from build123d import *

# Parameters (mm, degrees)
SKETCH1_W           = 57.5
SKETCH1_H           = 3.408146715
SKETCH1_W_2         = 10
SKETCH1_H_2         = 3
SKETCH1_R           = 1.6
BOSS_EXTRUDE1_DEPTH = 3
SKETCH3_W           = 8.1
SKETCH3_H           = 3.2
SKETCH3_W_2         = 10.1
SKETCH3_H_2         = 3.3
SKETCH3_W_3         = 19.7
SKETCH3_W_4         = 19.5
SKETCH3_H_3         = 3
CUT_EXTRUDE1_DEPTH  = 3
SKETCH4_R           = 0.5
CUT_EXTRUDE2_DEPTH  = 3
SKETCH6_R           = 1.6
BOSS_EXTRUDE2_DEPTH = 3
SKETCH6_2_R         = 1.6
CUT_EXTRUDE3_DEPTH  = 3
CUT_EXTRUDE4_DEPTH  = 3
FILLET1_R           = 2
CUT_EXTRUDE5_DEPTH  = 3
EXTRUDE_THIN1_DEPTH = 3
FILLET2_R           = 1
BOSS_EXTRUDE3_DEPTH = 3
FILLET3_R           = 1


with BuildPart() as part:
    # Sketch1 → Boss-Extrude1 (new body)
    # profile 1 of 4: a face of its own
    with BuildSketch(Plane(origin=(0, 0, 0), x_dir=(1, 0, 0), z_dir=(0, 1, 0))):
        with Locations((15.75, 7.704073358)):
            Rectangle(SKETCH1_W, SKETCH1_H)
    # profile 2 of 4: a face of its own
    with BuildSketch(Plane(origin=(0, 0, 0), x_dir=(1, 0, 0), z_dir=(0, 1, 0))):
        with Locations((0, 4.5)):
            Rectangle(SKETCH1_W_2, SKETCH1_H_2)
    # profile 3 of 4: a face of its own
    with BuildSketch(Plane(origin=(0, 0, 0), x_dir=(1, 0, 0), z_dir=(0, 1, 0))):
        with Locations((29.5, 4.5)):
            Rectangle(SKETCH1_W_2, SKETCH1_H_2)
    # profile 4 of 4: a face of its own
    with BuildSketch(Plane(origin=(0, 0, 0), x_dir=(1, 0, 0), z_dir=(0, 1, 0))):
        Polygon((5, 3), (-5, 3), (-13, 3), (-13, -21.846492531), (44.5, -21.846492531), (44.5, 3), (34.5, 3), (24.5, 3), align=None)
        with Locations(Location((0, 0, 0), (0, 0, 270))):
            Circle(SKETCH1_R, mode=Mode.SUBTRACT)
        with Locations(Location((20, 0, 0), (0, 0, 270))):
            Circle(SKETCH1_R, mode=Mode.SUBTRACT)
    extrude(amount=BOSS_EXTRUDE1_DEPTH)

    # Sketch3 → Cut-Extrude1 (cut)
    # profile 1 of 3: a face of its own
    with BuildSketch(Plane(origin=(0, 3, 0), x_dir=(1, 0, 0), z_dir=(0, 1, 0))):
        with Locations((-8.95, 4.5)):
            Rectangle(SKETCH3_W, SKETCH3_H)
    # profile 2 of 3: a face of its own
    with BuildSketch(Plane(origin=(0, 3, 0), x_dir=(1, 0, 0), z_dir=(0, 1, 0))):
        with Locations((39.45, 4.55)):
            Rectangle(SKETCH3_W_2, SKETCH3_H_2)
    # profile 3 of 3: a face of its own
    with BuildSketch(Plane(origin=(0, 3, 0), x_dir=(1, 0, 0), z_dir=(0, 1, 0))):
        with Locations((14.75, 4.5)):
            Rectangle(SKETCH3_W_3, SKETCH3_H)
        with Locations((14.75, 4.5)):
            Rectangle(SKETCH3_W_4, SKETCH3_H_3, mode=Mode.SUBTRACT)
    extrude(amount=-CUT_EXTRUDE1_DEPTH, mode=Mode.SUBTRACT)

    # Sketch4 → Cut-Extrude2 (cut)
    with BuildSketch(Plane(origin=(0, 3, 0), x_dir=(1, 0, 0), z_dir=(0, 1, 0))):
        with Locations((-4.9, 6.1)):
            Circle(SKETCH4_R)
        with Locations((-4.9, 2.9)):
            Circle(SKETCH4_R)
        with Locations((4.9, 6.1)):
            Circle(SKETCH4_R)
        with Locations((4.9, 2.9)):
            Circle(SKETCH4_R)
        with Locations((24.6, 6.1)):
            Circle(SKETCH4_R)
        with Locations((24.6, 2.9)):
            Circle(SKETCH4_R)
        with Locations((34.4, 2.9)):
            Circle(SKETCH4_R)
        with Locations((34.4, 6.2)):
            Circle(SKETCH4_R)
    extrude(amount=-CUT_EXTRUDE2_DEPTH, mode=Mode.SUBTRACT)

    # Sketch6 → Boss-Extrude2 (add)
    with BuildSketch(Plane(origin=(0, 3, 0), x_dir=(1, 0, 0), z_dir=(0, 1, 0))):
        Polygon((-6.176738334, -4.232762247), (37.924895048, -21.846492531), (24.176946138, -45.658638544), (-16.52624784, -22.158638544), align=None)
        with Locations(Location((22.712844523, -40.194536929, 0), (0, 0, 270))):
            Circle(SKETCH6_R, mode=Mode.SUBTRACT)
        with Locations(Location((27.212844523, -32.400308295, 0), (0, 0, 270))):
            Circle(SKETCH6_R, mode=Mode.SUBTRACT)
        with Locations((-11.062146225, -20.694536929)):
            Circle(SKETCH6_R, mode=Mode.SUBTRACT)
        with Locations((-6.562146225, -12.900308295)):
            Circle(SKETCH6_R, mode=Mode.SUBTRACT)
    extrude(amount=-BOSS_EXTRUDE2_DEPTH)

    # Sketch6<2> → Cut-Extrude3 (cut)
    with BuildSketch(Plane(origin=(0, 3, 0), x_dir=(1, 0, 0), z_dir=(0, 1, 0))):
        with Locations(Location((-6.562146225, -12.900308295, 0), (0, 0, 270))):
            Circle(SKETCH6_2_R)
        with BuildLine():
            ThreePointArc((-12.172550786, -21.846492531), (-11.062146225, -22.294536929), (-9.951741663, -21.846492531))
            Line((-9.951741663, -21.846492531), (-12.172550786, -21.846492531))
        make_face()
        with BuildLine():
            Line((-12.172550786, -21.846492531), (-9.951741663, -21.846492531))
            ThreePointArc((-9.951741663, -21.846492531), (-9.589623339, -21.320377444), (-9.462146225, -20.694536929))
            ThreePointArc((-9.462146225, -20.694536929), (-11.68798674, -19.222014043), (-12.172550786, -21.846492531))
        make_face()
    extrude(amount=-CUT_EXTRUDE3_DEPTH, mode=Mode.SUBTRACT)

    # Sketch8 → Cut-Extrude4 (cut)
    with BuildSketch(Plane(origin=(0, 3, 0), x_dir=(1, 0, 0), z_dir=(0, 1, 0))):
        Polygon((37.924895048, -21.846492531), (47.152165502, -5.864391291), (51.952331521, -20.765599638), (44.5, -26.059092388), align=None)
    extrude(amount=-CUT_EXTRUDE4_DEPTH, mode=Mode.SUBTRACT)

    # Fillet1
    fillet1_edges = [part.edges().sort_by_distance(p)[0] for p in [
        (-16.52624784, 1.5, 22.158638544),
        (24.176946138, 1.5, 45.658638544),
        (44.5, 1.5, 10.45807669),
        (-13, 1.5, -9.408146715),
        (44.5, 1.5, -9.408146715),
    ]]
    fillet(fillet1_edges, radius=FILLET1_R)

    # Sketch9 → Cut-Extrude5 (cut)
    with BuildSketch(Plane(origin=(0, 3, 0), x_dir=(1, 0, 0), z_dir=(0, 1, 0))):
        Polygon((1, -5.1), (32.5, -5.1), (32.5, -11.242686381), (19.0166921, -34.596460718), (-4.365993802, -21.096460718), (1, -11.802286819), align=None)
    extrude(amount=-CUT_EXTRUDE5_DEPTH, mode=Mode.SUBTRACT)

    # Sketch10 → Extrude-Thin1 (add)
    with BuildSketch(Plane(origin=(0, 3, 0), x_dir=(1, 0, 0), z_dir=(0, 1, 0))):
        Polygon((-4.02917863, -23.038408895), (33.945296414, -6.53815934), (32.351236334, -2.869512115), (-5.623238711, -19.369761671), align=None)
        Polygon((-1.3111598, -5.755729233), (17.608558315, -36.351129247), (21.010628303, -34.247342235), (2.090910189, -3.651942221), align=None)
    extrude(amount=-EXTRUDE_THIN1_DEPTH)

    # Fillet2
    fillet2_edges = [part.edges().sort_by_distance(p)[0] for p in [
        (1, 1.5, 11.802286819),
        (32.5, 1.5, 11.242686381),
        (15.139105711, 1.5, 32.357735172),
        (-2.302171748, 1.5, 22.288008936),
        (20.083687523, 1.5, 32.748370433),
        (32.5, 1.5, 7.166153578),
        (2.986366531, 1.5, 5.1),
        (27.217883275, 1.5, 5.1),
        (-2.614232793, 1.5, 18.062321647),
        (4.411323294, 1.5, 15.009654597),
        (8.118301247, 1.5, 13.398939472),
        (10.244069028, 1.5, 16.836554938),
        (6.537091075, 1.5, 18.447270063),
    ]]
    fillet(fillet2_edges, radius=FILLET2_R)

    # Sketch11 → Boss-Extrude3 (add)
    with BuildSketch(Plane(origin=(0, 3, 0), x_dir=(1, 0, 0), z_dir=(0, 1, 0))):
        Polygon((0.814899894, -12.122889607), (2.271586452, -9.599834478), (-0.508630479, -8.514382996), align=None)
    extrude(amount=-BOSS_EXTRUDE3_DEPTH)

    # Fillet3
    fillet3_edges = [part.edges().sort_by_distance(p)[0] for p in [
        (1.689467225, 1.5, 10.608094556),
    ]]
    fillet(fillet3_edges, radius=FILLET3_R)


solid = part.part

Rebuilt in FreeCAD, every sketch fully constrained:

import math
import FreeCAD as App
import Part
import Sketcher
Q = App.Units.Quantity


def edges_at(feature, points):
    """Names of the edges that pass closest to the given points."""
    edges = feature.Shape.Edges
    near = lambda p: min(range(len(edges)), key=lambda i: edges[i].distToShape(Part.Vertex(*p))[0])
    return sorted({f"Edge{near(p) + 1}" for p in points})


def add_polygon(sketch, points):
    """Adds a closed chain of lines whose ends are joined by coincident constraints."""
    first, n = sketch.GeometryCount, len(points)
    for a, b in zip(points, points[1:] + points[:1]):
        sketch.addGeometry(Part.LineSegment(App.Vector(*a, 0), App.Vector(*b, 0)), False)
    for i in range(n):
        sketch.addConstraint(Sketcher.Constraint("Coincident", first + i, 2, first + (i + 1) % n, 1))

doc = App.newDocument("Part")
body = doc.addObject("PartDesign::Body", "Body")

# Sketch on XZ plane
sketch1 = body.newObject("Sketcher::SketchObject", "Sketch")
sketch1.AttachmentSupport = (doc.getObject("XZ_Plane"), [""])
sketch1.MapMode = "FlatFace"
add_polygon(sketch1, [(-13, -9.4), (-13, -6), (-5, -6), (-5, -3), (-13, -3), (-13, 21.8), (44.5, 21.8), (44.5, -3), (34.5, -3), (34.5, -6), (44.5, -6), (44.5, -9.4)])  # lines 0-11
add_polygon(sketch1, [(5, -6), (24.5, -6), (24.5, -3), (5, -3)])  # lines 12-15
sketch1.addGeometry(Part.Circle(App.Vector(0, 0, 0), App.Vector(0, 0, 1), 1.6), False)  # 16
sketch1.addGeometry(Part.Circle(App.Vector(20, 0, 0), App.Vector(0, 0, 1), 1.6), False)  # 17
sketch1.addConstraint([
    Sketcher.Constraint("Vertical", 0),
    Sketcher.Constraint("Horizontal", 1),
    Sketcher.Constraint("Vertical", 2),
    Sketcher.Constraint("Horizontal", 3),
    Sketcher.Constraint("Vertical", 4),
    Sketcher.Constraint("Horizontal", 5),
    Sketcher.Constraint("Vertical", 6),
    Sketcher.Constraint("Horizontal", 7),
    Sketcher.Constraint("Vertical", 8),
    Sketcher.Constraint("Horizontal", 9),
    Sketcher.Constraint("Vertical", 10),
    Sketcher.Constraint("Horizontal", 11),
    Sketcher.Constraint("Horizontal", 12),
    Sketcher.Constraint("Vertical", 13),
    Sketcher.Constraint("Horizontal", 14),
    Sketcher.Constraint("Vertical", 15),
    Sketcher.Constraint("Coincident", 16, 3, -1, 1),
    Sketcher.Constraint("Equal", 16, 17),
    Sketcher.Constraint("Symmetric", 2, 2, 14, 2, -2),
    Sketcher.Constraint("PointOnObject", 17, 3, -1),
    Sketcher.Constraint("Horizontal", 3, 2, 6, 2),
    Sketcher.Constraint("Horizontal", 1, 2, 8, 2),
    Sketcher.Constraint("Horizontal", 9, 2, 12, 2),
    Sketcher.Constraint("Vertical", 0, 2, 3, 2),
    Sketcher.Constraint("Vertical", 6, 2, 9, 2),
    Sketcher.Constraint("Diameter", 16, 3.2),
    Sketcher.Constraint("DistanceX", 1, 1, 1, 2, 8.0),
    Sketcher.Constraint("DistanceX", 7, 2, 7, 1, 10.0),
    Sketcher.Constraint("DistanceY", 2, 1, 2, 2, 3.0),
    Sketcher.Constraint("DistanceX", 5, 1, 5, 2, 57.5),
    Sketcher.Constraint("DistanceX", 12, 1, 12, 2, 19.5),
    Sketcher.Constraint("DistanceX", -1, 1, 17, 3, 20.0),
    Sketcher.Constraint("DistanceX", 0, 2, -1, 1, 13.0),
    Sketcher.Constraint("DistanceY", 0, 2, -1, 1, 6.0),
    Sketcher.Constraint("DistanceY", 0, 1, 0, 2, 3.408147),
    Sketcher.Constraint("DistanceY", 4, 1, 4, 2, 24.846493),
])
pad1 = body.newObject("PartDesign::Pad", "Pad")
pad1.Profile = sketch1
pad1.Length = 3
pad1.Reversed = True

# Sketch on XZ plane
sketch2 = body.newObject("Sketcher::SketchObject", "Sketch001")
sketch2.AttachmentSupport = (doc.getObject("XZ_Plane"), [""])
sketch2.MapMode = "FlatFace"
sketch2.AttachmentOffset = App.Placement(App.Vector(0, 0, -3), App.Rotation())
add_polygon(sketch2, [(-13, -6.1), (-13, -2.9), (-4.9, -2.9), (-4.9, -6.1)])  # lines 0-3
add_polygon(sketch2, [(34.4, -6.2), (34.4, -2.9), (44.5, -2.9), (44.5, -6.2)])  # lines 4-7
add_polygon(sketch2, [(4.9, -6.1), (4.9, -2.9), (24.6, -2.9), (24.6, -6.1)])  # lines 8-11
add_polygon(sketch2, [(24.5, -3), (5, -3), (5, -6), (24.5, -6)])  # lines 12-15
sketch2.addConstraint([
    Sketcher.Constraint("Vertical", 0),
    Sketcher.Constraint("Horizontal", 1),
    Sketcher.Constraint("Vertical", 2),
    Sketcher.Constraint("Horizontal", 3),
    Sketcher.Constraint("Vertical", 4),
    Sketcher.Constraint("Horizontal", 5),
    Sketcher.Constraint("Vertical", 6),
    Sketcher.Constraint("Horizontal", 7),
    Sketcher.Constraint("Vertical", 8),
    Sketcher.Constraint("Horizontal", 9),
    Sketcher.Constraint("Vertical", 10),
    Sketcher.Constraint("Horizontal", 11),
    Sketcher.Constraint("Horizontal", 12),
    Sketcher.Constraint("Vertical", 13),
    Sketcher.Constraint("Horizontal", 14),
    Sketcher.Constraint("Vertical", 15),
    Sketcher.Constraint("Symmetric", 1, 2, 8, 2, -2),
    Sketcher.Constraint("Horizontal", 1, 2, 4, 2),
    Sketcher.Constraint("Horizontal", 3, 2, 10, 2),
    Sketcher.Constraint("DistanceY", 13, 2, 13, 1, 3.0),
    Sketcher.Constraint("DistanceX", 1, 1, 1, 2, 8.1),
    Sketcher.Constraint("DistanceX", 5, 1, 5, 2, 10.1),
    Sketcher.Constraint("DistanceX", 9, 1, 9, 2, 19.7),
    Sketcher.Constraint("DistanceX", 12, 2, 12, 1, 19.5),
    Sketcher.Constraint("DistanceY", 0, 1, 0, 2, 3.2),
    Sketcher.Constraint("DistanceY", 4, 1, 4, 2, 3.3),
    Sketcher.Constraint("DistanceX", 0, 2, -1, 1, 13.0),
    Sketcher.Constraint("DistanceX", -1, 1, 12, 2, 5.0),
    Sketcher.Constraint("DistanceY", 12, 2, -1, 1, 3.0),
    Sketcher.Constraint("DistanceY", 0, 2, -1, 1, 2.9),
    Sketcher.Constraint("DistanceX", -1, 1, 4, 2, 34.4),
])
pocket1 = body.newObject("PartDesign::Pocket", "Pocket")
pocket1.Profile = sketch2
pocket1.Length = 3
pocket1.Reversed = True

# Sketch on XZ plane
sketch3 = body.newObject("Sketcher::SketchObject", "Sketch002")
sketch3.AttachmentSupport = (doc.getObject("XZ_Plane"), [""])
sketch3.MapMode = "FlatFace"
sketch3.AttachmentOffset = App.Placement(App.Vector(0, 0, -3), App.Rotation())
sketch3.addGeometry([
    Part.Circle(App.Vector(-4.9, -6.1, 0), App.Vector(0, 0, 1), 0.5),  # 0
    Part.Circle(App.Vector(-4.9, -2.9, 0), App.Vector(0, 0, 1), 0.5),  # 1
    Part.Circle(App.Vector(4.9, -6.1, 0), App.Vector(0, 0, 1), 0.5),  # 2
    Part.Circle(App.Vector(4.9, -2.9, 0), App.Vector(0, 0, 1), 0.5),  # 3
    Part.Circle(App.Vector(24.6, -6.1, 0), App.Vector(0, 0, 1), 0.5),  # 4
    Part.Circle(App.Vector(24.6, -2.9, 0), App.Vector(0, 0, 1), 0.5),  # 5
    Part.Circle(App.Vector(34.4, -2.9, 0), App.Vector(0, 0, 1), 0.5),  # 6
    Part.Circle(App.Vector(34.4, -6.2, 0), App.Vector(0, 0, 1), 0.5),  # 7
], False)
sketch3.addConstraint([
    Sketcher.Constraint("Equal", 0, 1),
    Sketcher.Constraint("Equal", 1, 2),
    Sketcher.Constraint("Equal", 2, 3),
    Sketcher.Constraint("Equal", 3, 4),
    Sketcher.Constraint("Equal", 4, 5),
    Sketcher.Constraint("Equal", 5, 6),
    Sketcher.Constraint("Equal", 6, 7),
    Sketcher.Constraint("Symmetric", 0, 3, 2, 3, -2),
    Sketcher.Constraint("Symmetric", 1, 3, 3, 3, -2),
    Sketcher.Constraint("Horizontal", 2, 3, 4, 3),
    Sketcher.Constraint("Horizontal", 3, 3, 5, 3),
    Sketcher.Constraint("Horizontal", 5, 3, 6, 3),
    Sketcher.Constraint("Vertical", 0, 3, 1, 3),
    Sketcher.Constraint("Vertical", 4, 3, 5, 3),
    Sketcher.Constraint("Vertical", 6, 3, 7, 3),
    Sketcher.Constraint("Diameter", 0, 1.0),
    Sketcher.Constraint("DistanceX", 0, 3, -1, 1, 4.9),
    Sketcher.Constraint("DistanceY", 0, 3, -1, 1, 6.1),
    Sketcher.Constraint("DistanceY", 1, 3, -1, 1, 2.9),
    Sketcher.Constraint("DistanceX", -1, 1, 4, 3, 24.6),
    Sketcher.Constraint("DistanceX", -1, 1, 6, 3, 34.4),
    Sketcher.Constraint("DistanceY", 7, 3, -1, 1, 6.2),
])
pocket2 = body.newObject("PartDesign::Pocket", "Pocket001")
pocket2.Profile = sketch3
pocket2.Length = 3
pocket2.Reversed = True

# Sketch on XZ plane
sketch4 = body.newObject("Sketcher::SketchObject", "Sketch003")
sketch4.AttachmentSupport = (doc.getObject("XZ_Plane"), [""])
sketch4.MapMode = "FlatFace"
sketch4.AttachmentOffset = App.Placement(App.Vector(0, 0, -3), App.Rotation())
add_polygon(sketch4, [(37.9, 21.8), (-6.2, 4.2), (-16.5, 22.2), (24.2, 45.7)])  # lines 0-3
sketch4.addGeometry(Part.Circle(App.Vector(22.7, 40.2, 0), App.Vector(0, 0, 1), 1.6), False)  # 4
sketch4.addGeometry(Part.Circle(App.Vector(27.2, 32.4, 0), App.Vector(0, 0, 1), 1.6), False)  # 5
sketch4.addGeometry(Part.Circle(App.Vector(-11.1, 20.7, 0), App.Vector(0, 0, 1), 1.6), False)  # 6
sketch4.addGeometry(Part.Circle(App.Vector(-6.6, 12.9, 0), App.Vector(0, 0, 1), 1.6), False)  # 7
sketch4.addConstraint([
    Sketcher.Constraint("Equal", 4, 5),
    Sketcher.Constraint("Equal", 5, 6),
    Sketcher.Constraint("Equal", 6, 7),
    Sketcher.Constraint("Perpendicular", 1, 2),
    Sketcher.Constraint("Perpendicular", 2, 3),
    Sketcher.Constraint("Diameter", 4, 3.2),
    Sketcher.Constraint("Angle", 1, Q("120 deg")),
    Sketcher.Constraint("Distance", 2, 47.0),
    Sketcher.Constraint("DistanceX", 4, 3, 5, 3, 4.5),
    Sketcher.Constraint("DistanceY", 6, 3, 4, 3, 19.5),
    Sketcher.Constraint("DistanceX", 6, 3, 7, 3, 4.5),
    Sketcher.Constraint("DistanceY", 7, 3, 5, 3, 19.5),
    Sketcher.Constraint("DistanceX", 1, 2, 6, 3, 5.464102),
    Sketcher.Constraint("DistanceY", 6, 3, 1, 2, 1.464102),
    Sketcher.Constraint("DistanceX", 4, 3, 2, 2, 1.464102),
    Sketcher.Constraint("Distance", 0, 47.48892),
    Sketcher.Constraint("Distance", 1, 20.699019),
    Sketcher.Constraint("DistanceY", -1, 1, 5, 3, 32.400308),
    Sketcher.Constraint("DistanceX", 0, 2, -1, 1, 6.176738),
    Sketcher.Constraint("DistanceY", -1, 1, 1, 2, 22.158639),
])
pad2 = body.newObject("PartDesign::Pad", "Pad001")
pad2.Profile = sketch4
pad2.Length = 3

# Sketch on XZ plane
sketch5 = body.newObject("Sketcher::SketchObject", "Sketch004")
sketch5.AttachmentSupport = (doc.getObject("XZ_Plane"), [""])
sketch5.MapMode = "FlatFace"
sketch5.AttachmentOffset = App.Placement(App.Vector(0, 0, -3), App.Rotation())
sketch5.addGeometry([
    Part.Circle(App.Vector(-6.6, 12.9, 0), App.Vector(0, 0, 1), 1.6),
    Part.ArcOfCircle(Part.Circle(App.Vector(-11.1, 20.7, 0), App.Vector(0, 0, 1), 1.6), math.radians(46), math.radians(134)),
    Part.ArcOfCircle(Part.Circle(App.Vector(-11.1, 20.7, 0), App.Vector(0, 0, 1), 1.6), math.radians(0), math.radians(46)),
    Part.ArcOfCircle(Part.Circle(App.Vector(-11.1, 20.7, 0), App.Vector(0, 0, 1), 1.6), math.radians(134), math.radians(360)),
], False)
sketch5.addConstraint([
    Sketcher.Constraint("Tangent", 1, 1, 2, 2),
    Sketcher.Constraint("Tangent", 2, 1, 3, 2),
    Sketcher.Constraint("Tangent", 3, 1, 1, 2),
    Sketcher.Constraint("Equal", 0, 1),
    Sketcher.Constraint("Horizontal", 3, 3, 2, 1),
    Sketcher.Constraint("Horizontal", 1, 1, 3, 1),
    Sketcher.Constraint("Diameter", 0, 3.2),
    Sketcher.Constraint("DistanceX", 1, 3, 0, 3, 4.5),
    Sketcher.Constraint("DistanceY", -1, 1, 0, 3, 12.900308),
    Sketcher.Constraint("DistanceX", 1, 1, -1, 1, 9.951742),
    Sketcher.Constraint("DistanceX", 3, 1, -1, 1, 12.172551),
    Sketcher.Constraint("DistanceY", 0, 3, 1, 3, 7.794229),
])
pocket3 = body.newObject("PartDesign::Pocket", "Pocket002")
pocket3.Profile = sketch5
pocket3.Length = 3
pocket3.Reversed = True

# Sketch on XZ plane
sketch6 = body.newObject("Sketcher::SketchObject", "Sketch005")
sketch6.AttachmentSupport = (doc.getObject("XZ_Plane"), [""])
sketch6.MapMode = "FlatFace"
sketch6.AttachmentOffset = App.Placement(App.Vector(0, 0, -3), App.Rotation())
add_polygon(sketch6, [(47, 6), (38, 22), (44, 26), (52, 21)])  # lines 0-3
sketch6.addConstraint([
    Sketcher.Constraint("Angle", 0, Q("120 deg")),
    Sketcher.Constraint("DistanceX", -1, 1, 1, 2, 44.5),
    Sketcher.Constraint("DistanceY", -1, 1, 2, 2, 20.7656),
    Sketcher.Constraint("DistanceY", 0, 2, 1, 2, 4.2126),
    Sketcher.Constraint("DistanceY", 3, 2, 0, 2, 15.982101),
    Sketcher.Constraint("Distance", 1, 7.808841),
    Sketcher.Constraint("DistanceX", -1, 1, 2, 2, 51.952332),
    Sketcher.Constraint("DistanceY", -1, 1, 3, 2, 5.864391),
])
pocket4 = body.newObject("PartDesign::Pocket", "Pocket003")
pocket4.Profile = sketch6
pocket4.Length = 3
pocket4.Reversed = True
doc.recompute()

fillet = body.newObject("PartDesign::Fillet", "Fillet")
fillet.Base = (pocket4, edges_at(pocket4, [
    (-16.526, 1.5, 22.159),
    (24.177, 1.5, 45.659),
    (44.5, 1.5, 10.458),
    (-13, 1.5, -9.408),
    (44.5, 1.5, -9.408),
]))
fillet.Radius = 2

# Sketch on XZ plane
sketch7 = body.newObject("Sketcher::SketchObject", "Sketch006")
sketch7.AttachmentSupport = (doc.getObject("XZ_Plane"), [""])
sketch7.MapMode = "FlatFace"
sketch7.AttachmentOffset = App.Placement(App.Vector(0, 0, -3), App.Rotation())
add_polygon(sketch7, [(32, 5), (1, 5), (1, 12), (-4, 21), (19, 35), (32, 11)])  # lines 0-5
sketch7.addConstraint([
    Sketcher.Constraint("Horizontal", 0),
    Sketcher.Constraint("Vertical", 1),
    Sketcher.Constraint("Vertical", 5),
    Sketcher.Constraint("Perpendicular", 2, 3),
    Sketcher.Constraint("Perpendicular", 3, 4),
    Sketcher.Constraint("Angle", 2, Q("120 deg")),
    Sketcher.Constraint("Distance", 3, 27.0),
    Sketcher.Constraint("DistanceX", 0, 2, 0, 1, 31.5),
    Sketcher.Constraint("DistanceX", -1, 1, 0, 2, 1.0),
    Sketcher.Constraint("DistanceY", -1, 1, 0, 2, 5.1),
    Sketcher.Constraint("DistanceY", 1, 1, 1, 2, 6.702287),
    Sketcher.Constraint("DistanceY", -1, 1, 2, 2, 21.096461),
])
pocket5 = body.newObject("PartDesign::Pocket", "Pocket004")
pocket5.Profile = sketch7
pocket5.Length = 3
pocket5.Reversed = True

# Sketch on XZ plane
sketch8 = body.newObject("Sketcher::SketchObject", "Sketch007")
sketch8.AttachmentSupport = (doc.getObject("XZ_Plane"), [""])
sketch8.MapMode = "FlatFace"
sketch8.AttachmentOffset = App.Placement(App.Vector(0, 0, -3), App.Rotation())
add_polygon(sketch8, [(-5.6, 19.4), (-4, 23), (6.5, 18.4), (17.6, 36.4), (21, 34.2), (10.2, 16.8), (33.9, 6.5), (32.4, 2.9), (8.1, 13.4), (2.1, 3.7), (-1.3, 5.8), (4.4, 15)])  # lines 0-11
sketch8.addConstraint([
    Sketcher.Constraint("Perpendicular", 0, 1),
    Sketcher.Constraint("Perpendicular", 2, 3),
    Sketcher.Constraint("Perpendicular", 3, 4),
    Sketcher.Constraint("Parallel", 1, 5),
    Sketcher.Constraint("Perpendicular", 5, 6),
    Sketcher.Constraint("Perpendicular", 6, 7),
    Sketcher.Constraint("Parallel", 4, 8),
    Sketcher.Constraint("Perpendicular", 8, 9),
    Sketcher.Constraint("Perpendicular", 9, 10),
    Sketcher.Constraint("Parallel", 7, 11),
    Sketcher.Constraint("Equal", 0, 3),
    Sketcher.Constraint("Equal", 3, 6),
    Sketcher.Constraint("Equal", 6, 9),
    Sketcher.Constraint("Distance", 0, 4.0),
    Sketcher.Constraint("DistanceX", -1, 1, 7, 2, 8.118301),
    Sketcher.Constraint("DistanceY", 10, 2, 4, 2, 1.8269),
    Sketcher.Constraint("Distance", 8, 11.460078),
    Sketcher.Constraint("DistanceX", 0, 2, -1, 1, 4.029179),
    Sketcher.Constraint("DistanceY", -1, 1, 0, 2, 23.038409),
    Sketcher.Constraint("DistanceX", -1, 1, 1, 2, 6.537091),
    Sketcher.Constraint("DistanceY", -1, 1, 1, 2, 18.44727),
    Sketcher.Constraint("DistanceX", -1, 1, 2, 2, 17.608558),
    Sketcher.Constraint("DistanceY", -1, 1, 2, 2, 36.351129),
    Sketcher.Constraint("DistanceY", -1, 1, 5, 2, 6.538159),
])
pad3 = body.newObject("PartDesign::Pad", "Pad002")
pad3.Profile = sketch8
pad3.Length = 3
doc.recompute()

fillet2 = body.newObject("PartDesign::Fillet", "Fillet001")
fillet2.Base = (pad3, edges_at(pad3, [
    (1, 1.5, 11.802),
    (32.5, 1.5, 11.243),
    (15.139, 1.5, 32.358),
    (-2.302, 1.5, 22.288),
    (20.084, 1.5, 32.748),
    (32.5, 1.5, 7.166),
    (2.986, 1.5, 5.1),
    (27.218, 1.5, 5.1),
    (-2.614, 1.5, 18.062),
    (4.411, 1.5, 15.01),
    (8.118, 1.5, 13.399),
    (10.244, 1.5, 16.837),
    (6.537, 1.5, 18.447),
]))
fillet2.Radius = 1

# Sketch on XZ plane
sketch9 = body.newObject("Sketcher::SketchObject", "Sketch008")
sketch9.AttachmentSupport = (doc.getObject("XZ_Plane"), [""])
sketch9.MapMode = "FlatFace"
sketch9.AttachmentOffset = App.Placement(App.Vector(0, 0, -3), App.Rotation())
add_polygon(sketch9, [(0.8, 12.1), (2.3, 9.6), (-0.5, 8.5)])  # lines 0-2
sketch9.addConstraint([
    Sketcher.Constraint("Angle", 0, Q("-60 deg")),
    Sketcher.Constraint("DistanceX", -1, 1, 2, 2, 0.8149),
    Sketcher.Constraint("DistanceX", 1, 2, -1, 1, 0.50863),
    Sketcher.Constraint("DistanceY", -1, 1, 2, 2, 12.12289),
    Sketcher.Constraint("DistanceY", 1, 2, 0, 2, 1.085451),
    Sketcher.Constraint("Distance", 0, 2.913373),
])
pad4 = body.newObject("PartDesign::Pad", "Pad003")
pad4.Profile = sketch9
pad4.Length = 3
doc.recompute()

fillet3 = body.newObject("PartDesign::Fillet", "Fillet002")
fillet3.Base = (pad4, edges_at(pad4, [(1.689, 1.5, 10.608)]))
fillet3.Radius = 1

doc.recompute()
